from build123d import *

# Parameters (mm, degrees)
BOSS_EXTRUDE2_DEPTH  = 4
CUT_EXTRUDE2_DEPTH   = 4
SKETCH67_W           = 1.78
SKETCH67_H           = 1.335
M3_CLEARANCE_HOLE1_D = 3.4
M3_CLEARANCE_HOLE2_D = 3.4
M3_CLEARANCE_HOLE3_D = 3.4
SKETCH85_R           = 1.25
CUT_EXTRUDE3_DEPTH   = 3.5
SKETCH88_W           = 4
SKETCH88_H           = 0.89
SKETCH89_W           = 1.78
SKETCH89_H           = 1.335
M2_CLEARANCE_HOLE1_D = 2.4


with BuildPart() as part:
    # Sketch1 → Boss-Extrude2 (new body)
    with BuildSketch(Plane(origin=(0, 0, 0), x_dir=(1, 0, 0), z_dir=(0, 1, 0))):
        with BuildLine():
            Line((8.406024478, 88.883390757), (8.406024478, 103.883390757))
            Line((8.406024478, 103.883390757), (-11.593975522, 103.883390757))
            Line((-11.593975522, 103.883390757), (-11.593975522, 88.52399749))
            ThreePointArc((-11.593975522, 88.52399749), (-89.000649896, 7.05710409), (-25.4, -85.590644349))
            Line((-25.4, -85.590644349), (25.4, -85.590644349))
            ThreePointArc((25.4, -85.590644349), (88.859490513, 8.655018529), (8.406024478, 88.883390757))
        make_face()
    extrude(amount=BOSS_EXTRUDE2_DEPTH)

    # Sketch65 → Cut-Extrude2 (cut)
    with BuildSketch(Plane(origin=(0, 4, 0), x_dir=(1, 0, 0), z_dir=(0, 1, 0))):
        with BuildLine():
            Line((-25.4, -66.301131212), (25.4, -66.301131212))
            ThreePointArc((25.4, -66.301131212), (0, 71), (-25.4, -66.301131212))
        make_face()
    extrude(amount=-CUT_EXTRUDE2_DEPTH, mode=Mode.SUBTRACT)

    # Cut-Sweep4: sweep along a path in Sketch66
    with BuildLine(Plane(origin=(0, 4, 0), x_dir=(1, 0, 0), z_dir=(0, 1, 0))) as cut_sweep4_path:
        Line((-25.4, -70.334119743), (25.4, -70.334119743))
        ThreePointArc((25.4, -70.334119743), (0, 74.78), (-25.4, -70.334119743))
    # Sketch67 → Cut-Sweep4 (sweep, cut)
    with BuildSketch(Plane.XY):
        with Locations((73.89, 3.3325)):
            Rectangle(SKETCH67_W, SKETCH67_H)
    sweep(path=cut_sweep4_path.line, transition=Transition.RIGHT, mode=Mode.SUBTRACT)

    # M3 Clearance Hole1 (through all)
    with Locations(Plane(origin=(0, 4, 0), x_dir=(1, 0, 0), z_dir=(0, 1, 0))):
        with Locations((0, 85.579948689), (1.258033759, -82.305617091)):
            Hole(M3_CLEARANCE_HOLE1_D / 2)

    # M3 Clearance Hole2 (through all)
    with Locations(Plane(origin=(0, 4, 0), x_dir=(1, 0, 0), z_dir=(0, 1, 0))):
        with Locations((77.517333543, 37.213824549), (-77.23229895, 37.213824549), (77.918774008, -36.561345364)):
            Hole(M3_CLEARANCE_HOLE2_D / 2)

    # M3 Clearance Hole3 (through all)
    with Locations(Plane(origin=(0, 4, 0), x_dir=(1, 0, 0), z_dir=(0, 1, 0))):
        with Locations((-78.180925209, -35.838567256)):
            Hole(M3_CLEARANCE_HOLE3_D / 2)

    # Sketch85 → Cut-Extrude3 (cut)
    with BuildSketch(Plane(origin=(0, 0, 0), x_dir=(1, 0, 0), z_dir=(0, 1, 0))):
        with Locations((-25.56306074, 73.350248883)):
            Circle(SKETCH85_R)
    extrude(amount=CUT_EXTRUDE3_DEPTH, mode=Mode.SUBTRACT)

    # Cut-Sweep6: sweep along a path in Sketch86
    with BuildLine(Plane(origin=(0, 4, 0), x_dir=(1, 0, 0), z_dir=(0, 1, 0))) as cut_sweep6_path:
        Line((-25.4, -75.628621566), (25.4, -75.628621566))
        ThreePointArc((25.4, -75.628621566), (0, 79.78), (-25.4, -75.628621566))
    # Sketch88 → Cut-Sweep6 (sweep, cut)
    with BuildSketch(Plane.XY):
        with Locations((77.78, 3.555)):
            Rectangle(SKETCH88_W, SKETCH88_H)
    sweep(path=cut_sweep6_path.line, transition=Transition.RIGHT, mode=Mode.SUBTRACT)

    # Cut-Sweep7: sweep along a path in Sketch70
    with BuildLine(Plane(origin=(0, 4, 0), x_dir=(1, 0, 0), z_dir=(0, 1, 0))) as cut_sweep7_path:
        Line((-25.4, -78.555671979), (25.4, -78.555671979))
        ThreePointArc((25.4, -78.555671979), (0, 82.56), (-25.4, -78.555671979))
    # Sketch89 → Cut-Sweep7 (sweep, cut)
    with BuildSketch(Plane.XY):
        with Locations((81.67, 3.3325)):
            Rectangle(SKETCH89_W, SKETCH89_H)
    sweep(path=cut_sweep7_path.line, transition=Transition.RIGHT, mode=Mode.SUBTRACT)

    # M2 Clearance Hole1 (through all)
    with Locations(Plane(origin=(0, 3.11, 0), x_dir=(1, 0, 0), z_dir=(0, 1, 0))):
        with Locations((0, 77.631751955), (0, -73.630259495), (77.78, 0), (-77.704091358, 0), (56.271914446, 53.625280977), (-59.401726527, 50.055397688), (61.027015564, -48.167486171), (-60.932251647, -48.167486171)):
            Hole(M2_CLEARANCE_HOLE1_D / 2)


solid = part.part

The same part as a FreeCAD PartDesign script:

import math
import FreeCAD as App
import Part
import Sketcher

V = App.Vector
Q = App.Units.Quantity


def add_polygon(sketch, points):
    """Adds a closed chain of lines whose ends are joined by coincident constraints."""
    first, n = sketch.GeometryCount, len(points)
    for a, b in zip(points, points[1:] + points[:1]):
        sketch.addGeometry(Part.LineSegment(App.Vector(*a, 0), App.Vector(*b, 0)), False)
    for i in range(n):
        sketch.addConstraint(Sketcher.Constraint("Coincident", first + i, 2, first + (i + 1) % n, 1))

doc = App.newDocument("Part")
body = doc.addObject("PartDesign::Body", "Body")

# Sketch on XZ plane
sketch1 = body.newObject("Sketcher::SketchObject", "Sketch")
sketch1.AttachmentSupport = (doc.getObject("XZ_Plane"), [""])
sketch1.MapMode = "FlatFace"
sketch1.addGeometry([
    Part.LineSegment(V(8, -89, 0), V(8, -104, 0)),  # 0
    Part.LineSegment(V(8, -104, 0), V(-12, -104, 0)),  # 1
    Part.LineSegment(V(-12, -104, 0), V(-12, -89, 0)),  # 2
    Part.ArcOfCircle(Part.Circle(V(0, 0, 0), V(0, 0, 1), 89), math.radians(107), math.radians(263)),  # 3
    Part.LineSegment(V(-25, 86, 0), V(25, 86, 0)),  # 4
    Part.ArcOfCircle(Part.Circle(V(0, 0, 0), V(0, 0, 1), 89), math.radians(-85), math.radians(73)),  # 5
], False)
sketch1.addConstraint([
    Sketcher.Constraint("Coincident", 0, 2, 1, 1),
    Sketcher.Constraint("Coincident", 1, 2, 2, 1),
    Sketcher.Constraint("Coincident", 2, 2, 3, 2),
    Sketcher.Constraint("Coincident", 3, 1, 4, 1),
    Sketcher.Constraint("Coincident", 4, 2, 5, 2),
    Sketcher.Constraint("Coincident", 5, 1, 0, 1),
    Sketcher.Constraint("Vertical", 0),
    Sketcher.Constraint("Horizontal", 1),
    Sketcher.Constraint("Vertical", 2),
    Sketcher.Constraint("Horizontal", 4),
    Sketcher.Constraint("Coincident", 3, 3, -1, 1),
    Sketcher.Constraint("Coincident", 5, 3, -1, 1),
    Sketcher.Constraint("Equal", 3, 5),
    Sketcher.Constraint("DistanceX", 1, 2, 1, 1, Q("20 mm")),
    Sketcher.Constraint("DistanceY", 0, 2, 0, 1, Q("15 mm")),
    Sketcher.Constraint("Radius", 3, Q("89.28 mm")),
    Sketcher.Constraint("DistanceX", 4, 1, 4, 2, Q("50.8 mm")),
    Sketcher.Constraint("DistanceY", 2, 1, 2, 2, Q("15.359393 mm")),
])
pad1 = body.newObject("PartDesign::Pad", "Pad")
pad1.Profile = sketch1
pad1.Length = 4
pad1.Reversed = True

# Sketch on XZ plane
sketch2 = body.newObject("Sketcher::SketchObject", "Sketch001")
sketch2.AttachmentSupport = (doc.getObject("XZ_Plane"), [""])
sketch2.MapMode = "FlatFace"
sketch2.AttachmentOffset = App.Placement(V(0, 0, -4), App.Rotation())
sketch2.addGeometry([
    Part.LineSegment(V(-25, 66, 0), V(25, 66, 0)),
    Part.ArcOfCircle(Part.Circle(V(0, 0, 0), V(0, 0, 1), 71), math.radians(111), math.radians(429)),
], False)
sketch2.addConstraint([
    Sketcher.Constraint("Coincident", 0, 1, 1, 1),
    Sketcher.Constraint("Coincident", 1, 2, 0, 2),
    Sketcher.Constraint("Horizontal", 0),
    Sketcher.Constraint("Coincident", 1, 3, -1, 1),
    Sketcher.Constraint("Radius", 1, Q("71 mm")),
    Sketcher.Constraint("DistanceX", 0, 1, 0, 2, Q("50.8 mm")),
])
pocket1 = body.newObject("PartDesign::Pocket", "Pocket")
pocket1.Profile = sketch2
pocket1.Length = 4
pocket1.Reversed = True

# Sketch on XY plane
sketch3 = body.newObject("Sketcher::SketchObject", "Sketch002")
sketch3.AttachmentSupport = (doc.getObject("XY_Plane"), [""])
sketch3.MapMode = "FlatFace"
add_polygon(sketch3, [(73, 4), (73, 2.7), (74.8, 2.7), (74.8, 4)])  # lines 0-3
sketch3.addConstraint([
    Sketcher.Constraint("Vertical", 0),
    Sketcher.Constraint("Horizontal", 1),
    Sketcher.Constraint("Vertical", 2),
    Sketcher.Constraint("Horizontal", 3),
    Sketcher.Constraint("DistanceX", -1, 1, 0, 2, Q("73 mm")),
    Sketcher.Constraint("DistanceY", -1, 1, 2, 2, Q("4 mm")),
    Sketcher.Constraint("DistanceX", 1, 1, 1, 2, Q("1.78 mm")),
    Sketcher.Constraint("DistanceY", 0, 2, 0, 1, Q("1.335 mm")),
])

# Sketch on XZ plane
sketch4 = body.newObject("Sketcher::SketchObject", "Sketch003")
sketch4.AttachmentSupport = (doc.getObject("XZ_Plane"), [""])
sketch4.MapMode = "FlatFace"
sketch4.AttachmentOffset = App.Placement(V(0, 0, -4), App.Rotation())
sketch4.addGeometry([
    Part.LineSegment(V(-25, 70, 0), V(25, 70, 0)),
    Part.ArcOfCircle(Part.Circle(V(0, 0, 0), V(0, 0, 1), 75), math.radians(110), math.radians(430)),
], False)
sketch4.addConstraint([
    Sketcher.Constraint("Coincident", 0, 1, 1, 1),
    Sketcher.Constraint("Coincident", 1, 2, 0, 2),
    Sketcher.Constraint("Horizontal", 0),
    Sketcher.Constraint("Coincident", 1, 3, -1, 1),
    Sketcher.Constraint("Radius", 1, Q("74.78 mm")),
    Sketcher.Constraint("DistanceX", 0, 1, 0, 2, Q("50.8 mm")),
])
doc.recompute()

subtractivepipe = body.newObject("PartDesign::SubtractivePipe", "SubtractivePipe")
subtractivepipe.Profile = sketch3
subtractivepipe.Spine = (sketch4, ["Edge1", "Edge2"])
subtractivepipe.Transition = "Right corner"

# Sketch on XZ plane
sketch5 = body.newObject("Sketcher::SketchObject", "Sketch004")
sketch5.AttachmentSupport = (doc.getObject("XZ_Plane"), [""])
sketch5.MapMode = "FlatFace"
sketch5.AttachmentOffset = App.Placement(V(0, 0, -4), App.Rotation())
sketch5.addGeometry([
    Part.Circle(V(0, -85.6, 0), V(0, 0, 1), 1.7),
    Part.Circle(V(1.3, 82.3, 0), V(0, 0, 1), 1.7),
], False)
sketch5.addConstraint([
    Sketcher.Constraint("Equal", 0, 1),
    Sketcher.Constraint("PointOnObject", 0, 3, -2),
    Sketcher.Constraint("Diameter", 0, Q("3.4 mm")),
    Sketcher.Constraint("DistanceY", 0, 3, -1, 1, Q("85.579949 mm")),
    Sketcher.Constraint("DistanceX", -1, 1, 1, 3, Q("1.258034 mm")),
    Sketcher.Constraint("DistanceY", -1, 1, 1, 3, Q("82.305617 mm")),
])
doc.recompute()
hole = body.newObject("PartDesign::Hole", "Hole")
hole.Profile = sketch5
hole.ThreadType = "None"
hole.Diameter = 3.4
hole.DepthType = "ThroughAll"
hole.Reversed = True

# Sketch on XZ plane
sketch6 = body.newObject("Sketcher::SketchObject", "Sketch005")
sketch6.AttachmentSupport = (doc.getObject("XZ_Plane"), [""])
sketch6.MapMode = "FlatFace"
sketch6.AttachmentOffset = App.Placement(V(0, 0, -4), App.Rotation())
sketch6.addGeometry([
    Part.Circle(V(77.5, -37.2, 0), V(0, 0, 1), 1.7),
    Part.Circle(V(-77.2, -37.2, 0), V(0, 0, 1), 1.7),
    Part.Circle(V(77.9, 36.6, 0), V(0, 0, 1), 1.7),
], False)
sketch6.addConstraint([
    Sketcher.Constraint("Equal", 0, 1),
    Sketcher.Constraint("Equal", 1, 2),
    Sketcher.Constraint("Horizontal", 0, 3, 1, 3),
    Sketcher.Constraint("Diameter", 0, Q("3.4 mm")),
    Sketcher.Constraint("DistanceX", 1, 3, -1, 1, Q("77.232299 mm")),
    Sketcher.Constraint("DistanceX", 0, 3, 2, 3, Q("0.40144 mm")),
    Sketcher.Constraint("DistanceY", 0, 3, 2, 3, Q("73.77517 mm")),
    Sketcher.Constraint("DistanceX", -1, 1, 0, 3, Q("77.517334 mm")),
    Sketcher.Constraint("DistanceY", 0, 3, -1, 1, Q("37.213825 mm")),
])
doc.recompute()
hole2 = body.newObject("PartDesign::Hole", "Hole001")
hole2.Profile = sketch6
hole2.ThreadType = "None"
hole2.Diameter = 3.4
hole2.DepthType = "ThroughAll"
hole2.Reversed = True

# Sketch on XZ plane
sketch7 = body.newObject("Sketcher::SketchObject", "Sketch006")
sketch7.AttachmentSupport = (doc.getObject("XZ_Plane"), [""])
sketch7.MapMode = "FlatFace"
sketch7.AttachmentOffset = App.Placement(V(0, 0, -4), App.Rotation())
sketch7.addGeometry(Part.Circle(V(-78.2, 35.8, 0), V(0, 0, 1), 1.7), False)
sketch7.addConstraint([
    Sketcher.Constraint("Diameter", 0, Q("3.4 mm")),
    Sketcher.Constraint("DistanceX", 0, 3, -1, 1, Q("78.180925 mm")),
    Sketcher.Constraint("DistanceY", -1, 1, 0, 3, Q("35.838567 mm")),
])
doc.recompute()
hole3 = body.newObject("PartDesign::Hole", "Hole002")
hole3.Profile = sketch7
hole3.ThreadType = "None"
hole3.Diameter = 3.4
hole3.DepthType = "ThroughAll"
hole3.Reversed = True

# Sketch on XZ plane
sketch8 = body.newObject("Sketcher::SketchObject", "Sketch007")
sketch8.AttachmentSupport = (doc.getObject("XZ_Plane"), [""])
sketch8.MapMode = "FlatFace"
sketch8.addGeometry(Part.Circle(V(-25.6, -73.4, 0), V(0, 0, 1), 1.2), False)
sketch8.addConstraint([
    Sketcher.Constraint("Diameter", 0, Q("2.5 mm")),
    Sketcher.Constraint("DistanceX", 0, 3, -1, 1, Q("25.563061 mm")),
    Sketcher.Constraint("DistanceY", 0, 3, -1, 1, Q("73.350249 mm")),
])
pocket2 = body.newObject("PartDesign::Pocket", "Pocket001")
pocket2.Profile = sketch8
pocket2.Length = 3.5

# Sketch on XY plane
sketch9 = body.newObject("Sketcher::SketchObject", "Sketch008")
sketch9.AttachmentSupport = (doc.getObject("XY_Plane"), [""])
sketch9.MapMode = "FlatFace"
add_polygon(sketch9, [(75.8, 4), (75.8, 3.1), (79.8, 3.1), (79.8, 4)])  # lines 0-3
sketch9.addConstraint([
    Sketcher.Constraint("Vertical", 0),
    Sketcher.Constraint("Horizontal", 1),
    Sketcher.Constraint("Vertical", 2),
    Sketcher.Constraint("Horizontal", 3),
    Sketcher.Constraint("DistanceX", 1, 1, 1, 2, Q("4 mm")),
    Sketcher.Constraint("DistanceY", -1, 1, 2, 2, Q("4 mm")),
    Sketcher.Constraint("DistanceY", 0, 2, 0, 1, Q("0.89 mm")),
    Sketcher.Constraint("DistanceX", -1, 1, 0, 2, Q("75.78 mm")),
])

# Sketch on XZ plane
sketch10 = body.newObject("Sketcher::SketchObject", "Sketch009")
sketch10.AttachmentSupport = (doc.getObject("XZ_Plane"), [""])
sketch10.MapMode = "FlatFace"
sketch10.AttachmentOffset = App.Placement(V(0, 0, -4), App.Rotation())
sketch10.addGeometry([
    Part.LineSegment(V(-25, 76, 0), V(25, 76, 0)),
    Part.ArcOfCircle(Part.Circle(V(0, 0, 0), V(0, 0, 1), 80), math.radians(109), math.radians(431)),
], False)
sketch10.addConstraint([
    Sketcher.Constraint("Coincident", 0, 1, 1, 1),
    Sketcher.Constraint("Coincident", 1, 2, 0, 2),
    Sketcher.Constraint("Horizontal", 0),
    Sketcher.Constraint("Coincident", 1, 3, -1, 1),
    Sketcher.Constraint("Radius", 1, Q("79.78 mm")),
    Sketcher.Constraint("DistanceX", 0, 1, 0, 2, Q("50.8 mm")),
])
doc.recompute()

subtractivepipe2 = body.newObject("PartDesign::SubtractivePipe", "SubtractivePipe001")
subtractivepipe2.Profile = sketch9
subtractivepipe2.Spine = (sketch10, ["Edge1", "Edge2"])
subtractivepipe2.Transition = "Right corner"

# Sketch on XY plane
sketch11 = body.newObject("Sketcher::SketchObject", "Sketch010")
sketch11.AttachmentSupport = (doc.getObject("XY_Plane"), [""])
sketch11.MapMode = "FlatFace"
add_polygon(sketch11, [(80.8, 4), (80.8, 2.7), (82.6, 2.7), (82.6, 4)])  # lines 0-3
sketch11.addConstraint([
    Sketcher.Constraint("Vertical", 0),
    Sketcher.Constraint("Horizontal", 1),
    Sketcher.Constraint("Vertical", 2),
    Sketcher.Constraint("Horizontal", 3),
    Sketcher.Constraint("DistanceY", -1, 1, 2, 2, Q("4 mm")),
    Sketcher.Constraint("DistanceX", 1, 1, 1, 2, Q("1.78 mm")),
    Sketcher.Constraint("DistanceY", 0, 2, 0, 1, Q("1.335 mm")),
    Sketcher.Constraint("DistanceX", -1, 1, 0, 2, Q("80.78 mm")),
])

# Sketch on XZ plane
sketch12 = body.newObject("Sketcher::SketchObject", "Sketch011")
sketch12.AttachmentSupport = (doc.getObject("XZ_Plane"), [""])
sketch12.MapMode = "FlatFace"
sketch12.AttachmentOffset = App.Placement(V(0, 0, -4), App.Rotation())
sketch12.addGeometry([
    Part.LineSegment(V(-25, 79, 0), V(25, 79, 0)),
    Part.ArcOfCircle(Part.Circle(V(0, 0, 0), V(0, 0, 1), 83), math.radians(108), math.radians(432)),
], False)
sketch12.addConstraint([
    Sketcher.Constraint("Coincident", 0, 1, 1, 1),
    Sketcher.Constraint("Coincident", 1, 2, 0, 2),
    Sketcher.Constraint("Horizontal", 0),
    Sketcher.Constraint("Coincident", 1, 3, -1, 1),
    Sketcher.Constraint("Radius", 1, Q("82.56 mm")),
    Sketcher.Constraint("DistanceX", 0, 1, 0, 2, Q("50.8 mm")),
])
doc.recompute()

subtractivepipe3 = body.newObject("PartDesign::SubtractivePipe", "SubtractivePipe002")
subtractivepipe3.Profile = sketch11
subtractivepipe3.Spine = (sketch12, ["Edge1", "Edge2"])
subtractivepipe3.Transition = "Right corner"

# Sketch on XZ plane
sketch13 = body.newObject("Sketcher::SketchObject", "Sketch012")
sketch13.AttachmentSupport = (doc.getObject("XZ_Plane"), [""])
sketch13.MapMode = "FlatFace"
sketch13.AttachmentOffset = App.Placement(V(0, 0, -3.11), App.Rotation())
sketch13.addGeometry([
    Part.Circle(V(0, -77.6, 0), V(0, 0, 1), 1.2),  # 0
    Part.Circle(V(0, 73.6, 0), V(0, 0, 1), 1.2),  # 1
    Part.Circle(V(77.8, 0, 0), V(0, 0, 1), 1.2),  # 2
    Part.Circle(V(-77.7, 0, 0), V(0, 0, 1), 1.2),  # 3
    Part.Circle(V(56.3, -53.6, 0), V(0, 0, 1), 1.2),  # 4
    Part.Circle(V(-59.4, -50.1, 0), V(0, 0, 1), 1.2),  # 5
    Part.Circle(V(61, 48.2, 0), V(0, 0, 1), 1.2),  # 6
    Part.Circle(V(-60.9, 48.2, 0), V(0, 0, 1), 1.2),  # 7
], False)
sketch13.addConstraint([
    Sketcher.Constraint("Equal", 0, 1),
    Sketcher.Constraint("Equal", 1, 2),
    Sketcher.Constraint("Equal", 2, 3),
    Sketcher.Constraint("Equal", 3, 4),
    Sketcher.Constraint("Equal", 4, 5),
    Sketcher.Constraint("Equal", 5, 6),
    Sketcher.Constraint("Equal", 6, 7),
    Sketcher.Constraint("PointOnObject", 0, 3, -2),
    Sketcher.Constraint("PointOnObject", 1, 3, -2),
    Sketcher.Constraint("PointOnObject", 2, 3, -1),
    Sketcher.Constraint("PointOnObject", 3, 3, -1),
    Sketcher.Constraint("Horizontal", 6, 3, 7, 3),
    Sketcher.Constraint("Diameter", 0, Q("2.4 mm")),
    Sketcher.Constraint("DistanceX", -1, 1, 2, 3, Q("77.78 mm")),
    Sketcher.Constraint("DistanceX", 4, 3, 6, 3, Q("4.755101 mm")),
    Sketcher.Constraint("DistanceY", 0, 3, -1, 1, Q("77.631752 mm")),
    Sketcher.Constraint("DistanceY", -1, 1, 1, 3, Q("73.630259 mm")),
    Sketcher.Constraint("DistanceX", 3, 3, -1, 1, Q("77.704091 mm")),
    Sketcher.Constraint("DistanceY", 4, 3, -1, 1, Q("53.625281 mm")),
    Sketcher.Constraint("DistanceX", 7, 3, -1, 1, Q("60.932252 mm")),
    Sketcher.Constraint("DistanceX", 5, 3, 4, 3, Q("115.673641 mm")),
    Sketcher.Constraint("DistanceY", 0, 3, 6, 3, Q("125.799238 mm")),
    Sketcher.Constraint("DistanceX", -1, 1, 4, 3, Q("56.271914 mm")),
    Sketcher.Constraint("DistanceY", 5, 3, -1, 1, Q("50.055398 mm")),
])
doc.recompute()
hole4 = body.newObject("PartDesign::Hole", "Hole003")
hole4.Profile = sketch13
hole4.ThreadType = "None"
hole4.Diameter = 2.4
hole4.DepthType = "ThroughAll"
hole4.Reversed = True

doc.recompute()
